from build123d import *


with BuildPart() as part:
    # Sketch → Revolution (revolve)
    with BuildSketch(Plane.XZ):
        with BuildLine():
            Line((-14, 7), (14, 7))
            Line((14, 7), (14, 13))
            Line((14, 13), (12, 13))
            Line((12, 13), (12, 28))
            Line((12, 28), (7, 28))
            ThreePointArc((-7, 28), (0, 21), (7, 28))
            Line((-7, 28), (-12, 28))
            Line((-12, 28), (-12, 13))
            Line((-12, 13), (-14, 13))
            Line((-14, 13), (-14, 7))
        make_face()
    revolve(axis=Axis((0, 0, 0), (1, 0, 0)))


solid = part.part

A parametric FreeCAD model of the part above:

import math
import FreeCAD as App
import Part
import Sketcher

doc = App.newDocument("Part")
body = doc.addObject("PartDesign::Body", "Body")

# Sketch on XZ plane
sketch1 = body.newObject("Sketcher::SketchObject", "Sketch")
sketch1.AttachmentSupport = (doc.getObject("XZ_Plane"), [""])
sketch1.MapMode = "FlatFace"
sketch1.addGeometry([
    Part.LineSegment(App.Vector(-14, 7, 0), App.Vector(14, 7, 0)),  # 0
    Part.LineSegment(App.Vector(14, 7, 0), App.Vector(14, 13, 0)),  # 1
    Part.LineSegment(App.Vector(14, 13, 0), App.Vector(12, 13, 0)),  # 2
    Part.LineSegment(App.Vector(12, 13, 0), App.Vector(12, 28, 0)),  # 3
    Part.LineSegment(App.Vector(12, 28, 0), App.Vector(7, 28, 0)),  # 4
    Part.ArcOfCircle(Part.Circle(App.Vector(0, 28, 0), App.Vector(0, 0, 1), 7), math.radians(180), math.radians(360)),  # 5
    Part.LineSegment(App.Vector(-7, 28, 0), App.Vector(-12, 28, 0)),  # 6
    Part.LineSegment(App.Vector(-12, 28, 0), App.Vector(-12, 13, 0)),  # 7
    Part.LineSegment(App.Vector(-12, 13, 0), App.Vector(-14, 13, 0)),  # 8
    Part.LineSegment(App.Vector(-14, 13, 0), App.Vector(-14, 7, 0)),  # 9
], False)
sketch1.addConstraint([
    Sketcher.Constraint("Coincident", 0, 2, 1, 1),
    Sketcher.Constraint("Coincident", 1, 2, 2, 1),
    Sketcher.Constraint("Coincident", 2, 2, 3, 1),
    Sketcher.Constraint("Coincident", 3, 2, 4, 1),
    Sketcher.Constraint("Coincident", 4, 2, 5, 2),
    Sketcher.Constraint("Coincident", 5, 1, 6, 1),
    Sketcher.Constraint("Coincident", 6, 2, 7, 1),
    Sketcher.Constraint("Coincident", 7, 2, 8, 1),
    Sketcher.Constraint("Coincident", 8, 2, 9, 1),
    Sketcher.Constraint("Coincident", 9, 2, 0, 1),
    Sketcher.Constraint("Horizontal", 0),
    Sketcher.Constraint("Vertical", 1),
    Sketcher.Constraint("Horizontal", 2),
    Sketcher.Constraint("Vertical", 3),
    Sketcher.Constraint("Horizontal", 4),
    Sketcher.Constraint("Horizontal", 6),
    Sketcher.Constraint("Vertical", 7),
    Sketcher.Constraint("Horizontal", 8),
    Sketcher.Constraint("Vertical", 9),
    Sketcher.Constraint("Symmetric", 4, 2, 5, 1, -2),
    Sketcher.Constraint("Symmetric", 2, 2, 7, 2, -2),
    Sketcher.Constraint("Horizontal", 5, 3, 3, 2),
    Sketcher.Constraint("Equal", 2, 8),
    Sketcher.Constraint("Radius", 5, 7.0),
    Sketcher.Constraint("DistanceX", 0, 1, 0, 2, 28.0),
    Sketcher.Constraint("DistanceX", 2, 2, 2, 1, 2.0),
    Sketcher.Constraint("DistanceY", 1, 1, 1, 2, 6.0),
    Sketcher.Constraint("DistanceY", 3, 1, 3, 2, 15.0),
    Sketcher.Constraint("DistanceY", -1, 1, 5, 3, 28.0),
])
revolution = body.newObject("PartDesign::Revolution", "Revolution")
revolution.Profile = sketch1
revolution.ReferenceAxis = (sketch1, ["H_Axis"])
revolution.Angle = 360

doc.recompute()
